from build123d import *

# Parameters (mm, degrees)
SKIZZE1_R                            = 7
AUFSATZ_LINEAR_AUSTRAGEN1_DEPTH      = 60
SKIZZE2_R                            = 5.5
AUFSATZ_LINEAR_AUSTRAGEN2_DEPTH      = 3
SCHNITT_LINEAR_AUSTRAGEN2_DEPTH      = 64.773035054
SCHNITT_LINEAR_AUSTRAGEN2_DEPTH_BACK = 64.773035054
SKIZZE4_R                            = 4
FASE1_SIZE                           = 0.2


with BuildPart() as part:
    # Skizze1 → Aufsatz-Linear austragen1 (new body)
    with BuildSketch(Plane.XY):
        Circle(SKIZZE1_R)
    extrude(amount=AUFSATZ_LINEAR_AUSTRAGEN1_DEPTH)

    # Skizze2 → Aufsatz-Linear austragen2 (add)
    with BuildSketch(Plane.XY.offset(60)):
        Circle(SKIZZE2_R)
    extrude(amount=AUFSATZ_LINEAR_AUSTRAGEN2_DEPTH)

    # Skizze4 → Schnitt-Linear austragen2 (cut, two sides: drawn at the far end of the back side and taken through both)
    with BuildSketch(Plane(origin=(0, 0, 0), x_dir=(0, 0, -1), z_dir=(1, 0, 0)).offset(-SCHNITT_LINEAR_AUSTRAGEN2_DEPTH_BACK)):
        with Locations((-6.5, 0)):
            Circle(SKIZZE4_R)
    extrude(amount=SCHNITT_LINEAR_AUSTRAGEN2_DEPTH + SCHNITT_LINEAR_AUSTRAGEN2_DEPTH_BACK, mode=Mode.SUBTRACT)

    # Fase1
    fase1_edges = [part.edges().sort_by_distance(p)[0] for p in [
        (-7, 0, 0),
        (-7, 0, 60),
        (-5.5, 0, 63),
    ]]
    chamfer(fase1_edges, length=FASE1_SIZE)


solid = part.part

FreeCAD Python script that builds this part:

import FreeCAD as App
import Part
import Sketcher
from FreeCAD import Vector


def edges_at(feature, points):
    """Names of the edges that pass closest to the given points."""
    edges = feature.Shape.Edges
    near = lambda p: min(range(len(edges)), key=lambda i: edges[i].distToShape(Part.Vertex(*p))[0])
    return sorted({f"Edge{near(p) + 1}" for p in points})

doc = App.newDocument("Part")
params = doc.addObject("Spreadsheet::Sheet", "Params")
for row, (alias, value) in enumerate([
    ("sketch1_diameter", "14 mm"),
    ("pad1_length", "60 mm"),
    ("sketch2_diameter", "11 mm"),
    ("pad2_length", "3 mm"),
    ("sketch3_diameter", "8 mm"),
    ("chamfer_size", "0.2 mm"),
], start=1):
    params.set(f"A{row}", alias)
    params.set(f"B{row}", "=" + value)
    params.setAlias(f"B{row}", alias)

body = doc.addObject("PartDesign::Body", "Body")

# Sketch on XY plane
sketch1 = doc.addObject("Sketcher::SketchObject", "Sketch")
body.addObject(sketch1)
sketch1.AttachmentSupport = (doc.XY_Plane, [""])
sketch1.MapMode = "FlatFace"
sketch1.addGeometry(Part.Circle(Vector(0, 0, 0), Vector(0, 0, 1), 7), False)
sketch1.addConstraint(Sketcher.Constraint("Coincident", 0, 3, -1, 1))
sketch1.addConstraint(Sketcher.Constraint("Diameter", 0, 14.0))
sketch1.setExpression("Constraints[1]", "Params.sketch1_diameter")
pad1 = doc.addObject("PartDesign::Pad", "Pad")
body.addObject(pad1)
pad1.Profile = sketch1
pad1.setExpression("Length", "Params.pad1_length")

# Sketch on XY plane
sketch2 = doc.addObject("Sketcher::SketchObject", "Sketch001")
body.addObject(sketch2)
sketch2.AttachmentSupport = (doc.XY_Plane, [""])
sketch2.MapMode = "FlatFace"
sketch2.AttachmentOffset = App.Placement(Vector(0, 0, 60), App.Rotation())
sketch2.addGeometry(Part.Circle(Vector(0, 0, 0), Vector(0, 0, 1), 6), False)
sketch2.addConstraint(Sketcher.Constraint("Coincident", 0, 3, -1, 1))
sketch2.addConstraint(Sketcher.Constraint("Diameter", 0, 11.0))
sketch2.setExpression("Constraints[1]", "Params.sketch2_diameter")
pad2 = doc.addObject("PartDesign::Pad", "Pad001")
body.addObject(pad2)
pad2.Profile = sketch2
pad2.setExpression("Length", "Params.pad2_length")

# Sketch on YZ plane
sketch3 = doc.addObject("Sketcher::SketchObject", "Sketch002")
body.addObject(sketch3)
sketch3.AttachmentSupport = (doc.YZ_Plane, [""])
sketch3.MapMode = "FlatFace"
sketch3.addGeometry(Part.Circle(Vector(0, 6.5, 0), Vector(0, 0, 1), 4), False)
sketch3.addConstraint(Sketcher.Constraint("PointOnObject", 0, 3, -2))
sketch3.addConstraint(Sketcher.Constraint("Diameter", 0, 8.0))
sketch3.addConstraint(Sketcher.Constraint("DistanceY", -1, 1, 0, 3, 6.5))
sketch3.setExpression("Constraints[1]", "Params.sketch3_diameter")
pocket1 = doc.addObject("PartDesign::Pocket", "Pocket")
body.addObject(pocket1)
pocket1.Profile = sketch3
pocket1.Type = "ThroughAll"
pocket1.Midplane = True
doc.recompute()

chamfer = doc.addObject("PartDesign::Chamfer", "Chamfer")
body.addObject(chamfer)
chamfer.Base = (pocket1, edges_at(pocket1, [(-7, 0, 0), (-7, 0, 60), (-5.5, 0, 63)]))
chamfer.setExpression("Size", "Params.chamfer_size")

doc.recompute()
